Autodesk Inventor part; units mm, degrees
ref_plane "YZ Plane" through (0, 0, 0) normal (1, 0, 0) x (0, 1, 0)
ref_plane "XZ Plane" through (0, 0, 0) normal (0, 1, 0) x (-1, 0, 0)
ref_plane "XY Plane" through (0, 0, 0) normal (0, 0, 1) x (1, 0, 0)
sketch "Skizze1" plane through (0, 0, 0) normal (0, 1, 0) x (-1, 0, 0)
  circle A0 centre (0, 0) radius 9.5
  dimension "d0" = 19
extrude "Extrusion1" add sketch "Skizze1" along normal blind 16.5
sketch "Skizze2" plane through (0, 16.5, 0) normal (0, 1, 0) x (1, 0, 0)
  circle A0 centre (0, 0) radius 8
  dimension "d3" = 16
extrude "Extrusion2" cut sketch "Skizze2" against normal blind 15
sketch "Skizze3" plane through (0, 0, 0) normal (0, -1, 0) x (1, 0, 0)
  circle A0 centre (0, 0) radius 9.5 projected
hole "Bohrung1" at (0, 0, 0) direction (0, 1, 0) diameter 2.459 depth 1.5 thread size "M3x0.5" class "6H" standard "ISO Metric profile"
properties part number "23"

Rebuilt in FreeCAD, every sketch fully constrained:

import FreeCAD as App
import Part
import Sketcher
from FreeCAD import Vector
Q = App.Units.Quantity

doc = App.newDocument("Part")
params = doc.addObject("Spreadsheet::Sheet", "Params")
for row, (alias, value) in enumerate([
    ("sketch1_diameter", "19 mm"),
    ("pad1_length", "16.5 mm"),
    ("sketch2_diameter", "16 mm"),
    ("pocket1_length", "15 mm"),
    ("hole_diameter", "2.459 mm"),
    ("hole_depth", "1.5 mm"),
], start=1):
    params.set(f"A{row}", alias)
    params.set(f"B{row}", "=" + value)
    params.setAlias(f"B{row}", alias)

body = doc.addObject("PartDesign::Body", "Body")

sketch1 = body.newObject("Sketcher::SketchObject", "Sketch")
sketch1.AttachmentSupport = (doc.getObject("XZ_Plane"), [""])
sketch1.MapMode = "FlatFace"
sketch1.addGeometry(Part.Circle(Vector(0, 0, 0), Vector(0, 0, 1), 10), False)
sketch1.addConstraint([
    Sketcher.Constraint("Coincident", 0, 3, -1, 1),
    Sketcher.Constraint("Diameter", 0, Q("19 mm")),
])
sketch1.setExpression("Constraints[1]", "Params.sketch1_diameter")
pad1 = body.newObject("PartDesign::Pad", "Pad")
pad1.Profile = sketch1
pad1.setExpression("Length", "Params.pad1_length")
pad1.Reversed = True

sketch2 = body.newObject("Sketcher::SketchObject", "Sketch001")
sketch2.AttachmentSupport = (doc.getObject("XZ_Plane"), [""])
sketch2.MapMode = "FlatFace"
sketch2.AttachmentOffset = App.Placement(Vector(0, 0, -16.5), App.Rotation())
sketch2.addGeometry(Part.Circle(Vector(0, 0, 0), Vector(0, 0, 1), 8), False)
sketch2.addConstraint([
    Sketcher.Constraint("Coincident", 0, 3, -1, 1),
    Sketcher.Constraint("Diameter", 0, Q("16 mm")),
])
sketch2.setExpression("Constraints[1]", "Params.sketch2_diameter")
pocket1 = body.newObject("PartDesign::Pocket", "Pocket")
pocket1.Profile = sketch2
pocket1.setExpression("Length", "Params.pocket1_length")
pocket1.Reversed = True

sketch3 = body.newObject("Sketcher::SketchObject", "Sketch002")
sketch3.AttachmentSupport = (doc.getObject("XZ_Plane"), [""])
sketch3.MapMode = "FlatFace"
sketch3.addGeometry(Part.Circle(Vector(0, 0, 0), Vector(0, 0, 1), 1.2), False)
sketch3.addConstraint([
    Sketcher.Constraint("Coincident", 0, 3, -1, 1),
    Sketcher.Constraint("Diameter", 0, Q("2.459 mm")),
])
doc.recompute()
hole = body.newObject("PartDesign::Hole", "Hole")
hole.Profile = sketch3
hole.ThreadType = "None"
hole.setExpression("Diameter", "Params.hole_diameter")
hole.DepthType = "Dimension"
hole.setExpression("Depth", "Params.hole_depth")
hole.DrillPoint = "Flat"

doc.recompute()
